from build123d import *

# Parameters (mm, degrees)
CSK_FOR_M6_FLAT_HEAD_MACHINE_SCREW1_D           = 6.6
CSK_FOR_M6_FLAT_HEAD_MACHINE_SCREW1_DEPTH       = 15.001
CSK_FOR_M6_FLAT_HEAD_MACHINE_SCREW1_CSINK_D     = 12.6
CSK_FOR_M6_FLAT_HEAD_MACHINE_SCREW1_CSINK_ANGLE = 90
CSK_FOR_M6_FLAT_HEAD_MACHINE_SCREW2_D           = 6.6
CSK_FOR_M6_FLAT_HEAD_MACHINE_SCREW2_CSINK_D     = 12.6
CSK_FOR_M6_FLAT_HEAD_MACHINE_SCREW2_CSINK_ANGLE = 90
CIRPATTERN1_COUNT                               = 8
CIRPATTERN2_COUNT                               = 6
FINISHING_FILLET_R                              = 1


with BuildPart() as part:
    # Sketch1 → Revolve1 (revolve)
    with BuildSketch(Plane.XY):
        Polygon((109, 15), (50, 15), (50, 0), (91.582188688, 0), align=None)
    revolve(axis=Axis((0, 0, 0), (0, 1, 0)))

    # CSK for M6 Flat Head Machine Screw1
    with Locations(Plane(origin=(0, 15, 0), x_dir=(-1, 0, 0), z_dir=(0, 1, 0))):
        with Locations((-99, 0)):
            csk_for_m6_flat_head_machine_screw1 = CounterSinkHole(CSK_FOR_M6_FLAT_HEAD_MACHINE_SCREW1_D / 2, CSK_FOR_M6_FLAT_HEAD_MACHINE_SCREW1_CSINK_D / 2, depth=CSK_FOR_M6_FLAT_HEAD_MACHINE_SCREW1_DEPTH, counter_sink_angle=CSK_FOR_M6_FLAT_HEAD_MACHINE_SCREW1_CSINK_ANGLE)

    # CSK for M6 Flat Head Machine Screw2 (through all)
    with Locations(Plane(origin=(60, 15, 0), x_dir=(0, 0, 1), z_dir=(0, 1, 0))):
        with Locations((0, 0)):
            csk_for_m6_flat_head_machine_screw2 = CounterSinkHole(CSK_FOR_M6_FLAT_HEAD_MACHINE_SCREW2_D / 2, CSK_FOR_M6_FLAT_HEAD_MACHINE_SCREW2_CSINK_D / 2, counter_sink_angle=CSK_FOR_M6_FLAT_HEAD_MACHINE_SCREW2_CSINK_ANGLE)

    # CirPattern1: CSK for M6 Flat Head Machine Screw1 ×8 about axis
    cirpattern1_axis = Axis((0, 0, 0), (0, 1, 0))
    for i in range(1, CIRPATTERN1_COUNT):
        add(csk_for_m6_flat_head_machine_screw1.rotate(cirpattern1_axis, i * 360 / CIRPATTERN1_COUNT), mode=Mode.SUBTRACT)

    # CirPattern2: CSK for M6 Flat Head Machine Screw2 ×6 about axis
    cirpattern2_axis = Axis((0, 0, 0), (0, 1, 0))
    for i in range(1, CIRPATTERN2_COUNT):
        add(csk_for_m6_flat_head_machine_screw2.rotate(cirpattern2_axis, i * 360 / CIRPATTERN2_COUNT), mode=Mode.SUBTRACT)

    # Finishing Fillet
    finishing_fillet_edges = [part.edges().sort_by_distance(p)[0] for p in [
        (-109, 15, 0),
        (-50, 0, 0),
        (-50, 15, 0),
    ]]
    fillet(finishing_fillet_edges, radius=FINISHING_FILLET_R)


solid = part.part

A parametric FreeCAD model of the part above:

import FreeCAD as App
import Part
import Sketcher
from FreeCAD import Vector


def edges_at(feature, points):
    """Names of the edges that pass closest to the given points."""
    edges = feature.Shape.Edges
    near = lambda p: min(range(len(edges)), key=lambda i: edges[i].distToShape(Part.Vertex(*p))[0])
    return sorted({f"Edge{near(p) + 1}" for p in points})


def add_polygon(sketch, points):
    """Adds a closed chain of lines whose ends are joined by coincident constraints."""
    first, n = sketch.GeometryCount, len(points)
    for a, b in zip(points, points[1:] + points[:1]):
        sketch.addGeometry(Part.LineSegment(App.Vector(*a, 0), App.Vector(*b, 0)), False)
    for i in range(n):
        sketch.addConstraint(Sketcher.Constraint("Coincident", first + i, 2, first + (i + 1) % n, 1))

doc = App.newDocument("Part")
body = doc.addObject("PartDesign::Body", "Body")

# Sketch on XY plane
sketch1 = body.newObject("Sketcher::SketchObject", "Sketch")
sketch1.AttachmentSupport = (doc.getObject("XY_Plane"), [""])
sketch1.MapMode = "FlatFace"
add_polygon(sketch1, [(109, 15), (50, 15), (50, 0), (91.582189, 0)])  # lines 0-3
sketch1.addConstraint([
    Sketcher.Constraint("Horizontal", 0),
    Sketcher.Constraint("Vertical", 1),
    Sketcher.Constraint("Horizontal", 2),
    Sketcher.Constraint("PointOnObject", 1, 2, -1),
    Sketcher.Constraint("DistanceX", 0, 2, 0, 1, 59.0),
    Sketcher.Constraint("DistanceY", 1, 2, 1, 1, 15.0),
    Sketcher.Constraint("DistanceX", -1, 1, 0, 2, 50.0),
    Sketcher.Constraint("DistanceX", 2, 1, 2, 2, 41.582189),
])
revolution = body.newObject("PartDesign::Revolution", "Revolution")
revolution.Profile = sketch1
revolution.ReferenceAxis = (sketch1, ["V_Axis"])
revolution.Angle = 360

# Sketch on XZ plane
sketch2 = body.newObject("Sketcher::SketchObject", "Sketch001")
sketch2.AttachmentSupport = (doc.getObject("XZ_Plane"), [""])
sketch2.MapMode = "FlatFace"
sketch2.AttachmentOffset = App.Placement(Vector(0, 0, -15), App.Rotation())
sketch2.addGeometry(Part.Circle(Vector(99, 0, 0), Vector(0, 0, 1), 3.3), False)
sketch2.addConstraint([
    Sketcher.Constraint("PointOnObject", 0, 3, -1),
    Sketcher.Constraint("Diameter", 0, 6.6),
    Sketcher.Constraint("DistanceX", -1, 1, 0, 3, 99.0),
])
doc.recompute()
hole = body.newObject("PartDesign::Hole", "Hole")
hole.Profile = sketch2
hole.ThreadType = "None"
hole.Diameter = 6.6
hole.DepthType = "Dimension"
hole.Depth = 15.001
hole.DrillPoint = "Flat"
hole.HoleCutType = "Countersink"
hole.HoleCutDiameter = 12.6
hole.HoleCutCountersinkAngle = 90
hole.Reversed = True

# Sketch on XZ plane
sketch3 = body.newObject("Sketcher::SketchObject", "Sketch002")
sketch3.AttachmentSupport = (doc.getObject("XZ_Plane"), [""])
sketch3.MapMode = "FlatFace"
sketch3.AttachmentOffset = App.Placement(Vector(0, 0, -15), App.Rotation())
sketch3.addGeometry(Part.Circle(Vector(60, 0, 0), Vector(0, 0, 1), 3.3), False)
sketch3.addConstraint([
    Sketcher.Constraint("PointOnObject", 0, 3, -1),
    Sketcher.Constraint("Diameter", 0, 6.6),
    Sketcher.Constraint("DistanceX", -1, 1, 0, 3, 60.0),
])
doc.recompute()
hole2 = body.newObject("PartDesign::Hole", "Hole001")
hole2.Profile = sketch3
hole2.ThreadType = "None"
hole2.Diameter = 6.6
hole2.DepthType = "ThroughAll"
hole2.HoleCutType = "Countersink"
hole2.HoleCutDiameter = 12.6
hole2.HoleCutCountersinkAngle = 90
hole2.Reversed = True
doc.recompute()

polarpattern = body.newObject("PartDesign::PolarPattern", "PolarPattern")
polarpattern.Originals = [hole]
polarpattern.Axis = (doc.getObject("Y_Axis"), [""])
polarpattern.Angle = 360
polarpattern.Occurrences = 8
body.Tip = polarpattern
doc.recompute()

polarpattern2 = body.newObject("PartDesign::PolarPattern", "PolarPattern001")
polarpattern2.Originals = [hole2]
polarpattern2.Axis = (doc.getObject("Y_Axis"), [""])
polarpattern2.Angle = 360
polarpattern2.Occurrences = 6
body.Tip = polarpattern2
doc.recompute()

fillet = body.newObject("PartDesign::Fillet", "Fillet")
fillet.Base = (polarpattern2, edges_at(polarpattern2, [(-109, 15, 0), (-50, 0, 0), (-50, 15, 0)]))
fillet.Radius = 1

doc.recompute()
